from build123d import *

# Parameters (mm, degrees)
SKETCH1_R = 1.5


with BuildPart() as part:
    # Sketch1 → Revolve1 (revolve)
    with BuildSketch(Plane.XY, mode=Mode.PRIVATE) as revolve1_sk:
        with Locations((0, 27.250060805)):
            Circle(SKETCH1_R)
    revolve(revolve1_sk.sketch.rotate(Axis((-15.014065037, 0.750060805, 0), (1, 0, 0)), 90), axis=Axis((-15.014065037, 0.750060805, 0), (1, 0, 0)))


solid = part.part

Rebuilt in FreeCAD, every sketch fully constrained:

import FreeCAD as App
import Part
import Sketcher

doc = App.newDocument("Part")
body = doc.addObject("PartDesign::Body", "Body")

sketch1 = body.newObject("Sketcher::SketchObject", "Sketch")
sketch1.AttachmentSupport = (doc.getObject("XY_Plane"), [""])
sketch1.MapMode = "FlatFace"
sketch1.addGeometry(Part.Circle(App.Vector(0, 27.3, 0), App.Vector(0, 0, 1), 1.5), False)
sketch1.addGeometry(Part.LineSegment(App.Vector(0, 0.8, 0), App.Vector(10, 0.8, 0)), True)
sketch1.addConstraint([
    Sketcher.Constraint("Horizontal", 1),
    Sketcher.Constraint("PointOnObject", 0, 3, -2),
    Sketcher.Constraint("PointOnObject", 1, 1, -2),
    Sketcher.Constraint("Diameter", 0, 3.0),
    Sketcher.Constraint("DistanceX", 1, 1, 1, 2, 10.0),
    Sketcher.Constraint("DistanceY", 1, 1, 0, 3, 26.5),
    Sketcher.Constraint("DistanceY", -1, 1, 0, 3, 27.250061),
])
revolution = body.newObject("PartDesign::Revolution", "Revolution")
revolution.Profile = sketch1
revolution.ReferenceAxis = (sketch1, ["Axis0"])
revolution.Angle = 360

doc.recompute()
